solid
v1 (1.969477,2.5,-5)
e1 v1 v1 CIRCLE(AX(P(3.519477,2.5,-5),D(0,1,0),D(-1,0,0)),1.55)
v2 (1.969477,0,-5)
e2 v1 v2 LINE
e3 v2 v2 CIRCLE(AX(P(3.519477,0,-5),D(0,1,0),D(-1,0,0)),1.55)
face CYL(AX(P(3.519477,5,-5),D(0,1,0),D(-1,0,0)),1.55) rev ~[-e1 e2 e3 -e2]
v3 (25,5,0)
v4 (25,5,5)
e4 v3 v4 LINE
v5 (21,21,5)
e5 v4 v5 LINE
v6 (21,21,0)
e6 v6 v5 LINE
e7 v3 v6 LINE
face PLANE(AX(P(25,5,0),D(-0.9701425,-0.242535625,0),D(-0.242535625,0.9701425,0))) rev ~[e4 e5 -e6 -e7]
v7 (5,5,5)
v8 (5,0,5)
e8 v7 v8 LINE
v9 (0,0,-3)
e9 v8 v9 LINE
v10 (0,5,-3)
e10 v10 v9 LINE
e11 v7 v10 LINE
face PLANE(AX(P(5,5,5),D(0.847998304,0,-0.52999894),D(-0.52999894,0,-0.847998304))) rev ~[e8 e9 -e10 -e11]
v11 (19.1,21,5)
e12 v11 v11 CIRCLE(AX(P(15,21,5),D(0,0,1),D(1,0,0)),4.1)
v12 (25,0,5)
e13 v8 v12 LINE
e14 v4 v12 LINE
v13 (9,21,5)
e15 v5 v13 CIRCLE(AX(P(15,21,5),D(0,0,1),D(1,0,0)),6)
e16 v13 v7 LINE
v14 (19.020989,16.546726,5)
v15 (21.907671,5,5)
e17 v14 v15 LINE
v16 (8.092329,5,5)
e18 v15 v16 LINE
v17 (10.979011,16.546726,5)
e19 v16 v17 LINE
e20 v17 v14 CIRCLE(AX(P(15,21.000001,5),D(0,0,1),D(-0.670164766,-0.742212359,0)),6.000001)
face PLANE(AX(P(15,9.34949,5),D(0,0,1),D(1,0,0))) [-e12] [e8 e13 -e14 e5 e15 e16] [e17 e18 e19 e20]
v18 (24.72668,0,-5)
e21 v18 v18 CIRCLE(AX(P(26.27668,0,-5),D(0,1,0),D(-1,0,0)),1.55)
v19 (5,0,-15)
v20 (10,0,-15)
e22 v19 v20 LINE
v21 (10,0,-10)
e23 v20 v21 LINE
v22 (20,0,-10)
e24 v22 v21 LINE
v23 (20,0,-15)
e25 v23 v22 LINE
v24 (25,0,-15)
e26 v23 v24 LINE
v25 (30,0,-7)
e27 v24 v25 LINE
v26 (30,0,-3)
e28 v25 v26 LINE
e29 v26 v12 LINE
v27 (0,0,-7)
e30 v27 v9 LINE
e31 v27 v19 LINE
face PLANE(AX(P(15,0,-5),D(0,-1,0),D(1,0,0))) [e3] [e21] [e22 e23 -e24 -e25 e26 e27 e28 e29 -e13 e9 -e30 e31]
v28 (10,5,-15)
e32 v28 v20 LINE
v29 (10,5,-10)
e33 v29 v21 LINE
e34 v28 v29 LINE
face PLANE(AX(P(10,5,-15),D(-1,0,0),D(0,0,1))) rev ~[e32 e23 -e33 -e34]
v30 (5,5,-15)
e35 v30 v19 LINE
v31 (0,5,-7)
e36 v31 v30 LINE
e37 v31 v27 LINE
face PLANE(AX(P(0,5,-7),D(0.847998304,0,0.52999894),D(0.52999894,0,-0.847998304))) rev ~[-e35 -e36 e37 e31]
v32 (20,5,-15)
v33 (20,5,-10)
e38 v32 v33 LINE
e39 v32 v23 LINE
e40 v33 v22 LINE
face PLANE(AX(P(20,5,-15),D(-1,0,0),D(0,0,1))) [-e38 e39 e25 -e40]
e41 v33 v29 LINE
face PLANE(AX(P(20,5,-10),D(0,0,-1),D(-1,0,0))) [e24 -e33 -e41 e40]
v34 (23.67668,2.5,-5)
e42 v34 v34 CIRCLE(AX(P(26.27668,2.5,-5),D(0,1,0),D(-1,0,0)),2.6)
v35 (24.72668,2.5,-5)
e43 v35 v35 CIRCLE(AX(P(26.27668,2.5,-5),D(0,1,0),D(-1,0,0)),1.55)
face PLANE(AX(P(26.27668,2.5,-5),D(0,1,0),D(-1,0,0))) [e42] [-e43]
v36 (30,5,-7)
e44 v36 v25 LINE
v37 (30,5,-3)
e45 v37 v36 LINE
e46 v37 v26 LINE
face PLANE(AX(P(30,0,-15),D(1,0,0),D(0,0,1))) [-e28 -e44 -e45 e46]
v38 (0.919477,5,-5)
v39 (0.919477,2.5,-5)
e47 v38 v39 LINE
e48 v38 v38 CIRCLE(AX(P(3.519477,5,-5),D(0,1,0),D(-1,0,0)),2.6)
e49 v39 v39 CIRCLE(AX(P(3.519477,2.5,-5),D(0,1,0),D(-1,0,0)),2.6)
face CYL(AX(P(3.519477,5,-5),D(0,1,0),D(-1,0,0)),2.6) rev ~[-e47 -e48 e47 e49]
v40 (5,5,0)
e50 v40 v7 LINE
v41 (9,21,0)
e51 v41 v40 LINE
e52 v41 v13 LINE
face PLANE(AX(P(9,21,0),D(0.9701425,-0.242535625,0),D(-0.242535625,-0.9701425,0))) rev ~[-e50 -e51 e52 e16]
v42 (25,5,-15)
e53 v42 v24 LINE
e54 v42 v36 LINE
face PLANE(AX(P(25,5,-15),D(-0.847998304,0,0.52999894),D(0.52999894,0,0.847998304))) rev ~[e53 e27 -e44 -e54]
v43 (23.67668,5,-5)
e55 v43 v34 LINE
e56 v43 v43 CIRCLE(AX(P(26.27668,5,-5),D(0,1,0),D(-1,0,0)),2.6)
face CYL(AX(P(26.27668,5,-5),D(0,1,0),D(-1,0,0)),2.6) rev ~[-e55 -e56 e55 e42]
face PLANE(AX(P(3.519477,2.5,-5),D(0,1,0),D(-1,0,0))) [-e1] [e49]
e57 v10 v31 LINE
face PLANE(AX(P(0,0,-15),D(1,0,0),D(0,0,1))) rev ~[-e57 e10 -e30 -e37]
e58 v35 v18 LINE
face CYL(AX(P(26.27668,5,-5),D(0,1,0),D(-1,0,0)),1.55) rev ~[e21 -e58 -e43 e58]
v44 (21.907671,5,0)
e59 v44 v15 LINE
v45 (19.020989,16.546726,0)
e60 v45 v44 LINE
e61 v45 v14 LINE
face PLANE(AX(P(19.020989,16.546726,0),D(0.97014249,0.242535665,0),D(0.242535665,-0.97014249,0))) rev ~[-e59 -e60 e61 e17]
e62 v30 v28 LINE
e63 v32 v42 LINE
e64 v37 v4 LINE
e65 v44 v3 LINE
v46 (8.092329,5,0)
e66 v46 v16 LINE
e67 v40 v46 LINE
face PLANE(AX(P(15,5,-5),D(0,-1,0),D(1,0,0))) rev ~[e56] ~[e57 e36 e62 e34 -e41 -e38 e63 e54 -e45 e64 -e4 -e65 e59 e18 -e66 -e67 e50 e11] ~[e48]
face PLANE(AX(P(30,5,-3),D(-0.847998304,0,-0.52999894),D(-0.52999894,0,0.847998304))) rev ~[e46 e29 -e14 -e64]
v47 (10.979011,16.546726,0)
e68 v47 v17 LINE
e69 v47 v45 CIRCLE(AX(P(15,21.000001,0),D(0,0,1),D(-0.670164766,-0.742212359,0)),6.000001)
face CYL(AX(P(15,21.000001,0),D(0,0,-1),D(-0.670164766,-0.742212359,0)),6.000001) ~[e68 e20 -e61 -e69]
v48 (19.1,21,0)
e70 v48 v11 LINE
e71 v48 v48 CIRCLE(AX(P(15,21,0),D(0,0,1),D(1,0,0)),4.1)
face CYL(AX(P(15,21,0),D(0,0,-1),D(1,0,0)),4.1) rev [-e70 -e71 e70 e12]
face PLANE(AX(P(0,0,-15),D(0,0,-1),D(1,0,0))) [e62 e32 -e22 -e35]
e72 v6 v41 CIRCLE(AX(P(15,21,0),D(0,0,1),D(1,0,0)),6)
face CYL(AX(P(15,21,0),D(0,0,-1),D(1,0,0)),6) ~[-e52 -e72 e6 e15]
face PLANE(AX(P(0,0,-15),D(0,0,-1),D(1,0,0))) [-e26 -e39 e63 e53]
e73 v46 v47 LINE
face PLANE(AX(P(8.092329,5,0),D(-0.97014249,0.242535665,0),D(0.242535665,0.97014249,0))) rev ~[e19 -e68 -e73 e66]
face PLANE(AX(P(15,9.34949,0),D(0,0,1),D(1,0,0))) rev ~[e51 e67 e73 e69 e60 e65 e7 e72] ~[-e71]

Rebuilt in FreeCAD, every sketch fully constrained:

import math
import FreeCAD as App
import Part
import Sketcher
from FreeCAD import Vector


def add_polygon(sketch, points):
    """Adds a closed chain of lines whose ends are joined by coincident constraints."""
    first, n = sketch.GeometryCount, len(points)
    for a, b in zip(points, points[1:] + points[:1]):
        sketch.addGeometry(Part.LineSegment(App.Vector(*a, 0), App.Vector(*b, 0)), False)
    for i in range(n):
        sketch.addConstraint(Sketcher.Constraint("Coincident", first + i, 2, first + (i + 1) % n, 1))

doc = App.newDocument("Part")
body = doc.addObject("PartDesign::Body", "Body")

sketch1 = body.newObject("Sketcher::SketchObject", "Sketch")
sketch1.AttachmentSupport = (doc.getObject("XY_Plane"), [""])
sketch1.MapMode = "FlatFace"
sketch1.addGeometry([
    Part.LineSegment(Vector(0, 5, 0), Vector(0, 0, 0)),
    Part.LineSegment(Vector(0, 0, 0), Vector(30, 0, 0)),
    Part.LineSegment(Vector(30, 0, 0), Vector(30, 5, 0)),
    Part.LineSegment(Vector(30, 5, 0), Vector(25, 5, 0)),
    Part.LineSegment(Vector(25, 5, 0), Vector(21, 21, 0)),
    Part.ArcOfCircle(Part.Circle(Vector(15, 21, 0), Vector(0, 0, 1), 6), math.radians(0), math.radians(180)),
    Part.LineSegment(Vector(9, 21, 0), Vector(5, 5, 0)),
    Part.LineSegment(Vector(5, 5, 0), Vector(0, 5, 0)),
    Part.LineSegment(Vector(21.907671, 5, 0), Vector(8.092329, 5, 0)),
    Part.LineSegment(Vector(8.092329, 5, 0), Vector(10.979011, 16.546726, 0)),
    Part.ArcOfCircle(Part.Circle(Vector(15, 21.000001, 0), Vector(0, 0, 1), 6.000001), math.radians(-132.079783), math.radians(-47.920217)),
    Part.LineSegment(Vector(19.020989, 16.546726, 0), Vector(21.907671, 5, 0)),
    Part.Circle(Vector(15, 21, 0), Vector(0, 0, 1), 4.1),
], False)
sketch1.addConstraint([
    Sketcher.Constraint("Coincident", 0, 2, 1, 1),
    Sketcher.Constraint("Coincident", 1, 2, 2, 1),
    Sketcher.Constraint("Coincident", 2, 2, 3, 1),
    Sketcher.Constraint("Coincident", 3, 2, 4, 1),
    Sketcher.Constraint("Coincident", 4, 2, 5, 1),
    Sketcher.Constraint("Coincident", 5, 2, 6, 1),
    Sketcher.Constraint("Coincident", 6, 2, 7, 1),
    Sketcher.Constraint("Coincident", 7, 2, 0, 1),
    Sketcher.Constraint("Coincident", 8, 2, 9, 1),
    Sketcher.Constraint("Coincident", 9, 2, 10, 1),
    Sketcher.Constraint("Coincident", 10, 2, 11, 1),
    Sketcher.Constraint("Coincident", 11, 2, 8, 1),
    Sketcher.Constraint("Vertical", 0),
    Sketcher.Constraint("Horizontal", 1),
    Sketcher.Constraint("Vertical", 2),
    Sketcher.Constraint("Horizontal", 3),
    Sketcher.Constraint("Horizontal", 7),
    Sketcher.Constraint("Horizontal", 8),
    Sketcher.Constraint("Coincident", 0, 2, -1, 1),
    Sketcher.Constraint("Coincident", 10, 3, 5, 3),
    Sketcher.Constraint("Coincident", 12, 3, 5, 3),
    Sketcher.Constraint("Equal", 5, 10),
    Sketcher.Constraint("Parallel", 6, 9),
    Sketcher.Constraint("Parallel", 4, 11),
    Sketcher.Constraint("Horizontal", 12, 3, 4, 2),
    Sketcher.Constraint("Horizontal", 4, 2, 5, 2),
    Sketcher.Constraint("Horizontal", 3, 2, 6, 2),
    Sketcher.Constraint("Horizontal", 7, 2, 8, 2),
    Sketcher.Constraint("Horizontal", 9, 2, 10, 2),
    Sketcher.Constraint("Equal", 3, 7),
    Sketcher.Constraint("Equal", 7, 0),
    Sketcher.Constraint("Equal", 4, 6),
    Sketcher.Constraint("Radius", 5, 6.0),
    Sketcher.Constraint("Diameter", 12, 8.2),
    Sketcher.Constraint("DistanceX", 1, 1, 1, 2, 30.0),
    Sketcher.Constraint("DistanceX", 3, 2, 3, 1, 5.0),
    Sketcher.Constraint("DistanceY", -1, 1, 5, 3, 21.0),
    Sketcher.Constraint("DistanceX", 8, 2, 8, 1, 13.815342),
])
pad1 = body.newObject("PartDesign::Pad", "Pad")
pad1.Profile = sketch1
pad1.Length = 5

sketch2 = body.newObject("Sketcher::SketchObject", "Sketch001")
sketch2.AttachmentSupport = (doc.getObject("XZ_Plane"), [""])
sketch2.MapMode = "FlatFace"
add_polygon(sketch2, [(0, 5), (0, -15), (30, -15), (30, 5)])
sketch2.addConstraint([
    Sketcher.Constraint("Vertical", 0),
    Sketcher.Constraint("Horizontal", 1),
    Sketcher.Constraint("Vertical", 2),
    Sketcher.Constraint("Horizontal", 3),
    Sketcher.Constraint("PointOnObject", 0, 2, -2),
    Sketcher.Constraint("DistanceX", 1, 1, 1, 2, 30.0),
    Sketcher.Constraint("DistanceY", 0, 2, 0, 1, 20.0),
    Sketcher.Constraint("DistanceY", 0, 2, -1, 1, 15.0),
])
pad2 = body.newObject("PartDesign::Pad", "Pad001")
pad2.Profile = sketch2
pad2.Length = 5
pad2.Reversed = True

sketch3 = body.newObject("Sketcher::SketchObject", "Sketch002")
sketch3.AttachmentSupport = (doc.getObject("XZ_Plane"), [""])
sketch3.MapMode = "FlatFace"
sketch3.AttachmentOffset = App.Placement(Vector(0, 0, -5), App.Rotation())
sketch3.addGeometry(Part.Circle(Vector(26.27668, -5, 0), Vector(0, 0, 1), 1.55), False)
sketch3.addGeometry(Part.Circle(Vector(3.519477, -5, 0), Vector(0, 0, 1), 1.55), False)
add_polygon(sketch3, [(30, -3), (25, 5), (30, 5)])
add_polygon(sketch3, [(0, -3), (0, 5), (5, 5)])
add_polygon(sketch3, [(30, -15), (25, -15), (30, -7)])
add_polygon(sketch3, [(5, -15), (0, -15), (0, -7)])
add_polygon(sketch3, [(20, -10), (20, -15), (10, -15), (10, -10)])
sketch3.addConstraint([
    Sketcher.Constraint("Horizontal", 3),
    Sketcher.Constraint("Vertical", 4),
    Sketcher.Constraint("Vertical", 5),
    Sketcher.Constraint("Horizontal", 6),
    Sketcher.Constraint("Horizontal", 8),
    Sketcher.Constraint("Vertical", 10),
    Sketcher.Constraint("Horizontal", 11),
    Sketcher.Constraint("Vertical", 12),
    Sketcher.Constraint("Vertical", 14),
    Sketcher.Constraint("Horizontal", 15),
    Sketcher.Constraint("Vertical", 16),
    Sketcher.Constraint("Horizontal", 17),
    Sketcher.Constraint("Equal", 0, 1),
    Sketcher.Constraint("PointOnObject", 5, 2, -2),
    Sketcher.Constraint("PointOnObject", 11, 2, -2),
    Sketcher.Constraint("Parallel", 7, 9),
    Sketcher.Constraint("Parallel", 2, 13),
    Sketcher.Constraint("Horizontal", 0, 3, 1, 3),
    Sketcher.Constraint("Horizontal", 3, 2, 5, 2),
    Sketcher.Constraint("Horizontal", 4, 2, 7, 2),
    Sketcher.Constraint("Horizontal", 10, 2, 11, 2),
    Sketcher.Constraint("Horizontal", 9, 2, 12, 2),
    Sketcher.Constraint("Horizontal", 13, 2, 14, 2),
    Sketcher.Constraint("Vertical", 2, 2, 8, 2),
    Sketcher.Constraint("Vertical", 4, 2, 9, 2),
    Sketcher.Constraint("Vertical", 6, 2, 13, 2),
    Sketcher.Constraint("Equal", 11, 14),
    Sketcher.Constraint("Diameter", 0, 3.1),
    Sketcher.Constraint("DistanceX", 3, 1, 3, 2, 5.0),
    Sketcher.Constraint("DistanceX", 15, 2, 15, 1, 10.0),
    Sketcher.Constraint("DistanceY", 4, 2, 4, 1, 8.0),
    Sketcher.Constraint("DistanceY", 0, 3, -1, 1, 5.0),
    Sketcher.Constraint("DistanceX", -1, 1, 2, 2, 25.0),
    Sketcher.Constraint("DistanceY", -1, 1, 2, 2, 5.0),
    Sketcher.Constraint("DistanceY", 8, 2, -1, 1, 15.0),
    Sketcher.Constraint("DistanceX", -1, 1, 14, 2, 20.0),
    Sketcher.Constraint("DistanceX", -1, 1, 0, 3, 26.27668),
    Sketcher.Constraint("DistanceX", -1, 1, 1, 3, 3.519477),
])
pocket1 = body.newObject("PartDesign::Pocket", "Pocket")
pocket1.Profile = sketch3
pocket1.Length = 5
pocket1.Reversed = True

sketch4 = body.newObject("Sketcher::SketchObject", "Sketch003")
sketch4.AttachmentSupport = (doc.getObject("XZ_Plane"), [""])
sketch4.MapMode = "FlatFace"
sketch4.AttachmentOffset = App.Placement(Vector(0, 0, -5), App.Rotation())
sketch4.addGeometry([
    Part.Circle(Vector(26.27668, -5, 0), Vector(0, 0, 1), 2.6),
    Part.Circle(Vector(3.519477, -5, 0), Vector(0, 0, 1), 2.6),
], False)
sketch4.addConstraint([
    Sketcher.Constraint("Equal", 0, 1),
    Sketcher.Constraint("Horizontal", 0, 3, 1, 3),
    Sketcher.Constraint("Diameter", 0, 5.2),
    Sketcher.Constraint("DistanceY", 0, 3, -1, 1, 5.0),
    Sketcher.Constraint("DistanceX", -1, 1, 0, 3, 26.27668),
    Sketcher.Constraint("DistanceX", -1, 1, 1, 3, 3.519477),
])
pocket2 = body.newObject("PartDesign::Pocket", "Pocket001")
pocket2.Profile = sketch4
pocket2.Length = 2.5
pocket2.Reversed = True

doc.recompute()
